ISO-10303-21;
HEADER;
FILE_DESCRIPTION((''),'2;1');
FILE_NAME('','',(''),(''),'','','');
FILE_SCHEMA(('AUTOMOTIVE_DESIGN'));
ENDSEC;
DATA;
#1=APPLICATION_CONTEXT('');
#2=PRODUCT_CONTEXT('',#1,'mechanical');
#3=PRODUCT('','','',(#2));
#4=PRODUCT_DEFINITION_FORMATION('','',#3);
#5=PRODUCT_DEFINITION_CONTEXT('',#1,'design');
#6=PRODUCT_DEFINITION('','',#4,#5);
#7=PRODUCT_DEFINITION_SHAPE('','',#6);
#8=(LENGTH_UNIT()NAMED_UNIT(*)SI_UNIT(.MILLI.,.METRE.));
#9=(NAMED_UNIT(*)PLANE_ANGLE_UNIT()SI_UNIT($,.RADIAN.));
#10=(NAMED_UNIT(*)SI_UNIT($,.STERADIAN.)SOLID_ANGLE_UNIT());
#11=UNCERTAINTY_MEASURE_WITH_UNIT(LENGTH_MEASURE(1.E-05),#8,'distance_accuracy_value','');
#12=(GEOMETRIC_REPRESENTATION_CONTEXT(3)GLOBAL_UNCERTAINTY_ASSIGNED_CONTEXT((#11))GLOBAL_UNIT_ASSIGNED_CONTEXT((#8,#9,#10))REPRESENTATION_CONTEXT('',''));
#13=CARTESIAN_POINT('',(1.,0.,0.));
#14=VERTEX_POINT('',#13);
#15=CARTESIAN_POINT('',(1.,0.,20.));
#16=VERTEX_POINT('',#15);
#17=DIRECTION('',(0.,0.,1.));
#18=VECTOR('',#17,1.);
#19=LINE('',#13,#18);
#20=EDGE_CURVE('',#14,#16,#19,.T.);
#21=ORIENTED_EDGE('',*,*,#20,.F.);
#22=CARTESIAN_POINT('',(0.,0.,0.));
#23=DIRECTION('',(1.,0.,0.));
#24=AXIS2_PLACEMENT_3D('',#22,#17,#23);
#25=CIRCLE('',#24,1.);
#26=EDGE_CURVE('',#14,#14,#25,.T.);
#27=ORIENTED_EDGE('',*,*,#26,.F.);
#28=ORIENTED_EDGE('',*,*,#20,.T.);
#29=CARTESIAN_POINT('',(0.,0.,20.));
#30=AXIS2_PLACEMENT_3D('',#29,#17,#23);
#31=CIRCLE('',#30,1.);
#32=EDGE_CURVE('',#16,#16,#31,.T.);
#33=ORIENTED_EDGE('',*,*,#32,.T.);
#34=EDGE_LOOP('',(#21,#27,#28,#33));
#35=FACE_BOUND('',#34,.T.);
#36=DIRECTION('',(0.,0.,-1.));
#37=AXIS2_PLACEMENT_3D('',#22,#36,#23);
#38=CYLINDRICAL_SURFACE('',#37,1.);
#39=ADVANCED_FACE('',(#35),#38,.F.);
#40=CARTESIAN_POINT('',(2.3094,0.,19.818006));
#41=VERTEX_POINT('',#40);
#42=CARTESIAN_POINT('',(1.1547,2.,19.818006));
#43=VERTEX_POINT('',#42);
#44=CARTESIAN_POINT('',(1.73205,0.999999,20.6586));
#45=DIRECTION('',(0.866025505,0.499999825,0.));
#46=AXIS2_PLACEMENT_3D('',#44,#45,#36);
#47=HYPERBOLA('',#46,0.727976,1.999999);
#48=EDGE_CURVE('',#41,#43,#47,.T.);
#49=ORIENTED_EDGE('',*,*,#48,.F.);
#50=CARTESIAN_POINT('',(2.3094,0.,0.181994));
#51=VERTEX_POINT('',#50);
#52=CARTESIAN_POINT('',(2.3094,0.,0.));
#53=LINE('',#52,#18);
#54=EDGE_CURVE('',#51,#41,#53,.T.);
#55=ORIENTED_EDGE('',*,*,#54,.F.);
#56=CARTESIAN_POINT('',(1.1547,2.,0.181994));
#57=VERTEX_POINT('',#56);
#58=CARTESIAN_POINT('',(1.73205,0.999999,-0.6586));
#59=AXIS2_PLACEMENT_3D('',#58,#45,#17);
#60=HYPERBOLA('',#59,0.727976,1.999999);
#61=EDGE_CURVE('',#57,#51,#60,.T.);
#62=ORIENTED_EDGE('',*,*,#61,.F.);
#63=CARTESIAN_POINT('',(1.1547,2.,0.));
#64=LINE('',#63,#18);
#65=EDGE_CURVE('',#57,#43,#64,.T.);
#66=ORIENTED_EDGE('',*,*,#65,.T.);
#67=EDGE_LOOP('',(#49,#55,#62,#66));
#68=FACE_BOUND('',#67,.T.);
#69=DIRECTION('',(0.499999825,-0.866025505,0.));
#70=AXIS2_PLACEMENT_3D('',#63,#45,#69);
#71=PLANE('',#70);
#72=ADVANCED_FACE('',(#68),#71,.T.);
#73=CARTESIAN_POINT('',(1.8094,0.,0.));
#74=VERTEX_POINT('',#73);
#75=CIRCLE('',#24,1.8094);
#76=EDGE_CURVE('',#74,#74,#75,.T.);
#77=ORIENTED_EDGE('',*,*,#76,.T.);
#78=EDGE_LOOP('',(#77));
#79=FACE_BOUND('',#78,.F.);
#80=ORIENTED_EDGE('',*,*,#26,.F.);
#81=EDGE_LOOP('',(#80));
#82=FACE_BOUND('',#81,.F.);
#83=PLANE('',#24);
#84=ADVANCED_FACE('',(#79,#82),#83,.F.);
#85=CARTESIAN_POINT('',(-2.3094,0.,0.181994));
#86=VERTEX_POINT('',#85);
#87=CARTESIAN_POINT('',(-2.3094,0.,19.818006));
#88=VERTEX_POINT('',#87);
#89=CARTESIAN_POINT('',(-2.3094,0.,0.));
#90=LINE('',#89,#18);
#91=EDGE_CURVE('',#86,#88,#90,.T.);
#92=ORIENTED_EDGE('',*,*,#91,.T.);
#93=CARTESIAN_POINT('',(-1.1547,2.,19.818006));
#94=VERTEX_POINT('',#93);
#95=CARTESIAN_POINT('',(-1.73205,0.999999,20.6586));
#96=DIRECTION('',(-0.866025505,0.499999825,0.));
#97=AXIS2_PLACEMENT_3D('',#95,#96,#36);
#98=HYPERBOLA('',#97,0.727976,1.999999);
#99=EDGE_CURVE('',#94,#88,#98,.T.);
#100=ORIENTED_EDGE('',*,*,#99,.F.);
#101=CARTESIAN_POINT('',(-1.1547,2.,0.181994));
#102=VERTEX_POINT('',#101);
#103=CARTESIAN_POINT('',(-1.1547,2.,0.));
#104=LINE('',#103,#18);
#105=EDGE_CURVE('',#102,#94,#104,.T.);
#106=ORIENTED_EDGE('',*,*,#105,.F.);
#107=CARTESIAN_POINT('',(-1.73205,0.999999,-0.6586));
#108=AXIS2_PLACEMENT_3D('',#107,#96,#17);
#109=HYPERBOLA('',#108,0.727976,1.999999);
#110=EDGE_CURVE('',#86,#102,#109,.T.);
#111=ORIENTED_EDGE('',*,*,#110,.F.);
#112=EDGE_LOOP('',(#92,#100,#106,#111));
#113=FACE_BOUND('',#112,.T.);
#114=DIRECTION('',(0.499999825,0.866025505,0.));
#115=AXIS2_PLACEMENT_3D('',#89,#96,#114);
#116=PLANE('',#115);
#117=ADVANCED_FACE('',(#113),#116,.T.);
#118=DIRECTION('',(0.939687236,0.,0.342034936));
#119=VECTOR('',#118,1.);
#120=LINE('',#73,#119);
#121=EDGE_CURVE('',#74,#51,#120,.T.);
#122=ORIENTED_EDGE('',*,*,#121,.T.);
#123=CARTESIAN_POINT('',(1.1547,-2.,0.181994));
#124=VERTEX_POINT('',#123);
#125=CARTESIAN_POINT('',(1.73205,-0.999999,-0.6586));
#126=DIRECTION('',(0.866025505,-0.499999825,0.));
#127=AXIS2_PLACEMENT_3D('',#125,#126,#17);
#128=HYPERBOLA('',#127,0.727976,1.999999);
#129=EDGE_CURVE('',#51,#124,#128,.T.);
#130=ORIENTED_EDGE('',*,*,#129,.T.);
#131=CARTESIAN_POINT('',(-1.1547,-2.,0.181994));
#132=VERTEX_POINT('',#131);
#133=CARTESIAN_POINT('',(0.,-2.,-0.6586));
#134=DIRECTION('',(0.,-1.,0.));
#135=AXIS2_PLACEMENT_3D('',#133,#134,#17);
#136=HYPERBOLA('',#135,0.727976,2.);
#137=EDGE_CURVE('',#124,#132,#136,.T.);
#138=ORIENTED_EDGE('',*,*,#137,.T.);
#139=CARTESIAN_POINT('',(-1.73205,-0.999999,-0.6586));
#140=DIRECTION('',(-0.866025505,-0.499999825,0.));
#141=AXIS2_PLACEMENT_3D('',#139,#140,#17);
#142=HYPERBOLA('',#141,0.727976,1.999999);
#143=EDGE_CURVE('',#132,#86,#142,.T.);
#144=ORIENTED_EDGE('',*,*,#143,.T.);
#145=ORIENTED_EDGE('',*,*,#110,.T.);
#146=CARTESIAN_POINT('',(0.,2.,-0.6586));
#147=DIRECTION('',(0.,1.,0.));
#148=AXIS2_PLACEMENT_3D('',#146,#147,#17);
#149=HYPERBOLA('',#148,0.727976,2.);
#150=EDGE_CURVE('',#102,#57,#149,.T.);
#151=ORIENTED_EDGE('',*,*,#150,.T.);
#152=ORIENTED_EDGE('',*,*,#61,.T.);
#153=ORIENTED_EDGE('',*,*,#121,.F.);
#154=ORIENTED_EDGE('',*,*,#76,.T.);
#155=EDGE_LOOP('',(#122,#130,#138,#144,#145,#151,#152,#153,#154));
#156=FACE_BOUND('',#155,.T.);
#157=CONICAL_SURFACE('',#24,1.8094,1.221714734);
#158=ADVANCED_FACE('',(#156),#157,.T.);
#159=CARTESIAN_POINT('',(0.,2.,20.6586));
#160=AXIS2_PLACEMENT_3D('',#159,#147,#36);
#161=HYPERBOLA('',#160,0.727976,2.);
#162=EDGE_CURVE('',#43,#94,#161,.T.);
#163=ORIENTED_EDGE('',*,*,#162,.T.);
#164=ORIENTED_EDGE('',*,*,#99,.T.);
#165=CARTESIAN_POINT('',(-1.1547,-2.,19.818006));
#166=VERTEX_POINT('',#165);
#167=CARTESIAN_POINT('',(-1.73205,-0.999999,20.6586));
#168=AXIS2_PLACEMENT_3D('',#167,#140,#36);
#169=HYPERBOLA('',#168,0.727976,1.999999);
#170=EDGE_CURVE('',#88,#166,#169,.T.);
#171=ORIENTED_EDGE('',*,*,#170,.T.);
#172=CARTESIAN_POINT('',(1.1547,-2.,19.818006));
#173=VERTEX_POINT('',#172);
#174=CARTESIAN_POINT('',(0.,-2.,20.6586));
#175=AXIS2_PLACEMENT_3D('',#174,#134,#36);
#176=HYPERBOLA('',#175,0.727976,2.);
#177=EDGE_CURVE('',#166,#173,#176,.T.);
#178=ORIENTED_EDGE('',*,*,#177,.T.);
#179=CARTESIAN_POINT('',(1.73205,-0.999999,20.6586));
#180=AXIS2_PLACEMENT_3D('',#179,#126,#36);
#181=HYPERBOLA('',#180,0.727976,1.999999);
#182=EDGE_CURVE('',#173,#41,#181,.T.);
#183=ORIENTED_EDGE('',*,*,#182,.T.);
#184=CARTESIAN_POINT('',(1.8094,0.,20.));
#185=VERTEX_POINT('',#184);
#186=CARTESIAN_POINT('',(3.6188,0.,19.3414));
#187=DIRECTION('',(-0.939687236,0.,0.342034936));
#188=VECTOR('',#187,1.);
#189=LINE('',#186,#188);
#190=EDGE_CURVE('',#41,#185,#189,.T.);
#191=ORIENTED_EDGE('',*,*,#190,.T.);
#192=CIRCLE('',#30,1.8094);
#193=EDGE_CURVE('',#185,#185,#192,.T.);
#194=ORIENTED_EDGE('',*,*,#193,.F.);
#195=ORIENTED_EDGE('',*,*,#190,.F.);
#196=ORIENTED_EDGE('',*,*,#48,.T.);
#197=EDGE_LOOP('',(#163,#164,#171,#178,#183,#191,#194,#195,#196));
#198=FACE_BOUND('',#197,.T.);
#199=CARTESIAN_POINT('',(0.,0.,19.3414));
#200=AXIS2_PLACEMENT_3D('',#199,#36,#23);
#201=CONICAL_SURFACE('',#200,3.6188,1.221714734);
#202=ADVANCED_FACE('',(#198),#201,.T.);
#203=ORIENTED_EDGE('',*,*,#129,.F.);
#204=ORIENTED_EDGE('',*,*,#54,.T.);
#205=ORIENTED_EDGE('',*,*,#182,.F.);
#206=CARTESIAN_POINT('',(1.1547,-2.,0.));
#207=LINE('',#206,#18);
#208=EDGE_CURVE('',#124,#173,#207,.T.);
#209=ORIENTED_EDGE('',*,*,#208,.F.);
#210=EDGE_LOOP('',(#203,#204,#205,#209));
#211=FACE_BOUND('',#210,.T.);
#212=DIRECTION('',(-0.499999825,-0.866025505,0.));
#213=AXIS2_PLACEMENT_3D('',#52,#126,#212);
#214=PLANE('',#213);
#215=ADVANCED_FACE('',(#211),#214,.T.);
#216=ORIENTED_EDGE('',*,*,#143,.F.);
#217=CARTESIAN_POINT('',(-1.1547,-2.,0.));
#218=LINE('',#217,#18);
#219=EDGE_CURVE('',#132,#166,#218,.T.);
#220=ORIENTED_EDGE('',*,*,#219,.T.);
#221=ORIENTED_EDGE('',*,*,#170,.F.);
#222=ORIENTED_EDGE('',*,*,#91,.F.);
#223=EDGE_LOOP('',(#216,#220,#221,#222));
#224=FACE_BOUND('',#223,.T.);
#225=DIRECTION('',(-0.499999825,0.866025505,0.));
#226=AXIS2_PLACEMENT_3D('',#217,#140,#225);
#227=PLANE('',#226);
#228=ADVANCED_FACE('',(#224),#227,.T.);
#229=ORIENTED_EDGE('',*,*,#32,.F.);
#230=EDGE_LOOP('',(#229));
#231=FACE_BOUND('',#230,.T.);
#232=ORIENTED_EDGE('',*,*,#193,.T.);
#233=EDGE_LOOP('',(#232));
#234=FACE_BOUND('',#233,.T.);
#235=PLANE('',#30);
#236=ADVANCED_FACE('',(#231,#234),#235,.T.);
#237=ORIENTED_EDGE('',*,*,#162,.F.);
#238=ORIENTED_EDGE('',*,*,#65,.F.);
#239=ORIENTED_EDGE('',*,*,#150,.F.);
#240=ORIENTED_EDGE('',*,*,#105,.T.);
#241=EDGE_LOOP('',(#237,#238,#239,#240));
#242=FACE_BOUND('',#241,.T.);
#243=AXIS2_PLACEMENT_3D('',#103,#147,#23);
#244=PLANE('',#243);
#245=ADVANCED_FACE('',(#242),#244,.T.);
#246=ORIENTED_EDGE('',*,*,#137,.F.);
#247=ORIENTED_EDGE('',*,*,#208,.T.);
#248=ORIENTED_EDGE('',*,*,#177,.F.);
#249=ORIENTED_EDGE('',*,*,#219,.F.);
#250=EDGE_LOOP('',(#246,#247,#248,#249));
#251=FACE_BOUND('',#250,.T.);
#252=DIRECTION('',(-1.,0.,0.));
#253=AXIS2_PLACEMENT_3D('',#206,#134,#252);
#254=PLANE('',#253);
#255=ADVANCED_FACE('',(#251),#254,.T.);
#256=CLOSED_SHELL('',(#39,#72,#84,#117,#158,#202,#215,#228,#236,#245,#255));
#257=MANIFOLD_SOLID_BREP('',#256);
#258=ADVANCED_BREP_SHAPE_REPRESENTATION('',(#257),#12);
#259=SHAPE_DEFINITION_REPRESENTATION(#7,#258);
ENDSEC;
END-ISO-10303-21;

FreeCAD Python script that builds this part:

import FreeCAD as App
import Part
import Sketcher
Q = App.Units.Quantity


def add_polygon(sketch, points):
    """Adds a closed chain of lines whose ends are joined by coincident constraints."""
    first, n = sketch.GeometryCount, len(points)
    for a, b in zip(points, points[1:] + points[:1]):
        sketch.addGeometry(Part.LineSegment(App.Vector(*a, 0), App.Vector(*b, 0)), False)
    for i in range(n):
        sketch.addConstraint(Sketcher.Constraint("Coincident", first + i, 2, first + (i + 1) % n, 1))

doc = App.newDocument("Part")
body = doc.addObject("PartDesign::Body", "Body")

sketch1 = doc.addObject("Sketcher::SketchObject", "Sketch")
body.addObject(sketch1)
sketch1.AttachmentSupport = (doc.XY_Plane, [""])
sketch1.MapMode = "FlatFace"
add_polygon(sketch1, [(2.3, 0), (1.2, 2), (-1.2, 2), (-2.3, 0), (-1.2, -2), (1.2, -2)])
sketch1.addGeometry(Part.Circle(App.Vector(0, 0, 0), App.Vector(0, 0, 1), 1), False)
sketch1.addConstraint([
    Sketcher.Constraint("Horizontal", 1),
    Sketcher.Constraint("Horizontal", 4),
    Sketcher.Constraint("Coincident", 6, 3, -1, 1),
    Sketcher.Constraint("Symmetric", 0, 2, 3, 2, -1, 1),
    Sketcher.Constraint("Symmetric", 2, 2, 5, 2, -1, 1),
    Sketcher.Constraint("PointOnObject", 2, 2, -1),
    Sketcher.Constraint("Parallel", 2, 5),
    Sketcher.Constraint("Vertical", 1, 2, 3, 2),
    Sketcher.Constraint("Diameter", 6, Q("2 mm")),
    Sketcher.Constraint("DistanceY", -1, 1, 0, 2, Q("2 mm")),
    Sketcher.Constraint("Angle", 0, Q("120 deg")),
    Sketcher.Constraint("DistanceX", 1, 2, 1, 1, Q("2.3094 mm")),
])
pad1 = doc.addObject("PartDesign::Pad", "Pad")
body.addObject(pad1)
pad1.Profile = sketch1
pad1.Length = 20

sketch2 = doc.addObject("Sketcher::SketchObject", "Sketch001")
body.addObject(sketch2)
sketch2.AttachmentSupport = (doc.XZ_Plane, [""])
sketch2.MapMode = "FlatFace"
add_polygon(sketch2, [(3.6, 19.3), (1.8, 20), (3.6, 20)])
add_polygon(sketch2, [(3.6, 0), (1.8, 0), (3.6, 0.7)])
sketch2.addConstraint([
    Sketcher.Constraint("Horizontal", 1),
    Sketcher.Constraint("Vertical", 2),
    Sketcher.Constraint("Horizontal", 3),
    Sketcher.Constraint("Vertical", 5),
    Sketcher.Constraint("PointOnObject", 3, 2, -1),
    Sketcher.Constraint("Vertical", 0, 2, 3, 2),
    Sketcher.Constraint("Vertical", 2, 2, 4, 2),
    Sketcher.Constraint("Equal", 2, 5),
    Sketcher.Constraint("DistanceY", -1, 1, 0, 2, Q("20 mm")),
    Sketcher.Constraint("Angle", 0, Q("159.999 deg")),
    Sketcher.Constraint("DistanceX", 1, 1, 1, 2, Q("1.8094 mm")),
    Sketcher.Constraint("DistanceX", -1, 1, 0, 2, Q("1.8094 mm")),
])
groove = doc.addObject("PartDesign::Groove", "Groove")
body.addObject(groove)
groove.Profile = sketch2
groove.ReferenceAxis = (sketch2, ["V_Axis"])
groove.Angle = 360

doc.recompute()
